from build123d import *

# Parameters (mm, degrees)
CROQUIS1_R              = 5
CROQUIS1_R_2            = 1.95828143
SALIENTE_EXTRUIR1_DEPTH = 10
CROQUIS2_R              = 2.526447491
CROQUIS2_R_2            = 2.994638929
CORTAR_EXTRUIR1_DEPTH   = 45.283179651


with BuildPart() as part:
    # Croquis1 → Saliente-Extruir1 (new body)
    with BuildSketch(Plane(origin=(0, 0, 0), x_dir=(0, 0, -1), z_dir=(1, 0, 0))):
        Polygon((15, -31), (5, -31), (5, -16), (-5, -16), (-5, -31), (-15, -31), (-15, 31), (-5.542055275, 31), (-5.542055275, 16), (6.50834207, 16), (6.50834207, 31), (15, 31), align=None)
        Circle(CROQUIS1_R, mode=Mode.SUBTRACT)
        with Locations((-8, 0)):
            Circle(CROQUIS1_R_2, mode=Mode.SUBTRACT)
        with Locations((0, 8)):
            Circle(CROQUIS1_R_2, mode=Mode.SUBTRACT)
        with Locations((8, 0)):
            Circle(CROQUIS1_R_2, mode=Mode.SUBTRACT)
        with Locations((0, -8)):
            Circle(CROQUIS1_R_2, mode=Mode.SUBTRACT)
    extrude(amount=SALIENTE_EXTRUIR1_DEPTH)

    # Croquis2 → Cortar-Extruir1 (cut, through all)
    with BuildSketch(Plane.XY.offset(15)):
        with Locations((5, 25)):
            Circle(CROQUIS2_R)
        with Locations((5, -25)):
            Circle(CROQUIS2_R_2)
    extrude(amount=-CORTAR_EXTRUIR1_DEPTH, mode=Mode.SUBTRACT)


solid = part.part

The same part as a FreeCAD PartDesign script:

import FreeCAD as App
import Part
import Sketcher

V = App.Vector


def add_polygon(sketch, points):
    """Adds a closed chain of lines whose ends are joined by coincident constraints."""
    first, n = sketch.GeometryCount, len(points)
    for a, b in zip(points, points[1:] + points[:1]):
        sketch.addGeometry(Part.LineSegment(App.Vector(*a, 0), App.Vector(*b, 0)), False)
    for i in range(n):
        sketch.addConstraint(Sketcher.Constraint("Coincident", first + i, 2, first + (i + 1) % n, 1))

doc = App.newDocument("Part")
body = doc.addObject("PartDesign::Body", "Body")

# Sketch on YZ plane
sketch1 = doc.addObject("Sketcher::SketchObject", "Sketch")
body.addObject(sketch1)
sketch1.AttachmentSupport = (doc.YZ_Plane, [""])
sketch1.MapMode = "FlatFace"
add_polygon(sketch1, [(-31, -5), (-31, -15), (31, -15), (31, -6.5), (16, -6.5), (16, 5.5), (31, 5.5), (31, 15), (-31, 15), (-31, 5), (-16, 5), (-16, -5)])  # lines 0-11
sketch1.addGeometry(Part.Circle(V(-8, 0, 0), V(0, 0, 1), 2), False)  # 12
sketch1.addGeometry(Part.Circle(V(0, -8, 0), V(0, 0, 1), 2), False)  # 13
sketch1.addGeometry(Part.Circle(V(0, 0, 0), V(0, 0, 1), 5), False)  # 14
sketch1.addGeometry(Part.Circle(V(0, 8, 0), V(0, 0, 1), 2), False)  # 15
sketch1.addGeometry(Part.Circle(V(8, 0, 0), V(0, 0, 1), 2), False)  # 16
sketch1.addConstraint(Sketcher.Constraint("Vertical", 0))
sketch1.addConstraint(Sketcher.Constraint("Horizontal", 1))
sketch1.addConstraint(Sketcher.Constraint("Vertical", 2))
sketch1.addConstraint(Sketcher.Constraint("Horizontal", 3))
sketch1.addConstraint(Sketcher.Constraint("Vertical", 4))
sketch1.addConstraint(Sketcher.Constraint("Horizontal", 5))
sketch1.addConstraint(Sketcher.Constraint("Vertical", 6))
sketch1.addConstraint(Sketcher.Constraint("Horizontal", 7))
sketch1.addConstraint(Sketcher.Constraint("Vertical", 8))
sketch1.addConstraint(Sketcher.Constraint("Horizontal", 9))
sketch1.addConstraint(Sketcher.Constraint("Vertical", 10))
sketch1.addConstraint(Sketcher.Constraint("Horizontal", 11))
sketch1.addConstraint(Sketcher.Constraint("Coincident", 14, 3, -1, 1))
sketch1.addConstraint(Sketcher.Constraint("Equal", 12, 13))
sketch1.addConstraint(Sketcher.Constraint("Equal", 13, 15))
sketch1.addConstraint(Sketcher.Constraint("Equal", 15, 16))
sketch1.addConstraint(Sketcher.Constraint("Symmetric", 13, 3, 15, 3, -1, 1))
sketch1.addConstraint(Sketcher.Constraint("Symmetric", 12, 3, 16, 3, -1, 1))
sketch1.addConstraint(Sketcher.Constraint("Symmetric", 0, 2, 6, 2, -1, 1))
sketch1.addConstraint(Sketcher.Constraint("Symmetric", 8, 2, 11, 2, -1))
sketch1.addConstraint(Sketcher.Constraint("PointOnObject", 12, 3, -1))
sketch1.addConstraint(Sketcher.Constraint("PointOnObject", 13, 3, -2))
sketch1.addConstraint(Sketcher.Constraint("Vertical", 2, 2, 5, 2))
sketch1.addConstraint(Sketcher.Constraint("Equal", 5, 9))
sketch1.addConstraint(Sketcher.Constraint("Equal", 8, 10))
sketch1.addConstraint(Sketcher.Constraint("Diameter", 14, 10.0))
sketch1.addConstraint(Sketcher.Constraint("DistanceX", 1, 1, 1, 2, 62.0))
sketch1.addConstraint(Sketcher.Constraint("DistanceX", 3, 2, 3, 1, 15.0))
sketch1.addConstraint(Sketcher.Constraint("DistanceY", 0, 2, 0, 1, 10.0))
sketch1.addConstraint(Sketcher.Constraint("DistanceX", 12, 3, -1, 1, 8.0))
sketch1.addConstraint(Sketcher.Constraint("DistanceY", 13, 3, -1, 1, 8.0))
sketch1.addConstraint(Sketcher.Constraint("Diameter", 12, 3.916563))
sketch1.addConstraint(Sketcher.Constraint("DistanceY", 2, 1, 2, 2, 8.491658))
sketch1.addConstraint(Sketcher.Constraint("DistanceY", 4, 1, 4, 2, 12.050397))
pad1 = doc.addObject("PartDesign::Pad", "Pad")
body.addObject(pad1)
pad1.Profile = sketch1
pad1.Length = 10

# Sketch on XY plane
sketch2 = doc.addObject("Sketcher::SketchObject", "Sketch001")
body.addObject(sketch2)
sketch2.AttachmentSupport = (doc.XY_Plane, [""])
sketch2.MapMode = "FlatFace"
sketch2.AttachmentOffset = App.Placement(V(0, 0, 15), App.Rotation())
sketch2.addGeometry(Part.Circle(V(5, 25, 0), V(0, 0, 1), 2.5), False)
sketch2.addGeometry(Part.Circle(V(5, -25, 0), V(0, 0, 1), 3), False)
sketch2.addConstraint(Sketcher.Constraint("Symmetric", 0, 3, 1, 3, -1))
sketch2.addConstraint(Sketcher.Constraint("DistanceX", -1, 1, 0, 3, 5.0))
sketch2.addConstraint(Sketcher.Constraint("DistanceY", -1, 1, 0, 3, 25.0))
sketch2.addConstraint(Sketcher.Constraint("Diameter", 0, 5.052895))
sketch2.addConstraint(Sketcher.Constraint("Diameter", 1, 5.989278))
pocket1 = doc.addObject("PartDesign::Pocket", "Pocket")
body.addObject(pocket1)
pocket1.Profile = sketch2
pocket1.Type = "ThroughAll"

doc.recompute()
